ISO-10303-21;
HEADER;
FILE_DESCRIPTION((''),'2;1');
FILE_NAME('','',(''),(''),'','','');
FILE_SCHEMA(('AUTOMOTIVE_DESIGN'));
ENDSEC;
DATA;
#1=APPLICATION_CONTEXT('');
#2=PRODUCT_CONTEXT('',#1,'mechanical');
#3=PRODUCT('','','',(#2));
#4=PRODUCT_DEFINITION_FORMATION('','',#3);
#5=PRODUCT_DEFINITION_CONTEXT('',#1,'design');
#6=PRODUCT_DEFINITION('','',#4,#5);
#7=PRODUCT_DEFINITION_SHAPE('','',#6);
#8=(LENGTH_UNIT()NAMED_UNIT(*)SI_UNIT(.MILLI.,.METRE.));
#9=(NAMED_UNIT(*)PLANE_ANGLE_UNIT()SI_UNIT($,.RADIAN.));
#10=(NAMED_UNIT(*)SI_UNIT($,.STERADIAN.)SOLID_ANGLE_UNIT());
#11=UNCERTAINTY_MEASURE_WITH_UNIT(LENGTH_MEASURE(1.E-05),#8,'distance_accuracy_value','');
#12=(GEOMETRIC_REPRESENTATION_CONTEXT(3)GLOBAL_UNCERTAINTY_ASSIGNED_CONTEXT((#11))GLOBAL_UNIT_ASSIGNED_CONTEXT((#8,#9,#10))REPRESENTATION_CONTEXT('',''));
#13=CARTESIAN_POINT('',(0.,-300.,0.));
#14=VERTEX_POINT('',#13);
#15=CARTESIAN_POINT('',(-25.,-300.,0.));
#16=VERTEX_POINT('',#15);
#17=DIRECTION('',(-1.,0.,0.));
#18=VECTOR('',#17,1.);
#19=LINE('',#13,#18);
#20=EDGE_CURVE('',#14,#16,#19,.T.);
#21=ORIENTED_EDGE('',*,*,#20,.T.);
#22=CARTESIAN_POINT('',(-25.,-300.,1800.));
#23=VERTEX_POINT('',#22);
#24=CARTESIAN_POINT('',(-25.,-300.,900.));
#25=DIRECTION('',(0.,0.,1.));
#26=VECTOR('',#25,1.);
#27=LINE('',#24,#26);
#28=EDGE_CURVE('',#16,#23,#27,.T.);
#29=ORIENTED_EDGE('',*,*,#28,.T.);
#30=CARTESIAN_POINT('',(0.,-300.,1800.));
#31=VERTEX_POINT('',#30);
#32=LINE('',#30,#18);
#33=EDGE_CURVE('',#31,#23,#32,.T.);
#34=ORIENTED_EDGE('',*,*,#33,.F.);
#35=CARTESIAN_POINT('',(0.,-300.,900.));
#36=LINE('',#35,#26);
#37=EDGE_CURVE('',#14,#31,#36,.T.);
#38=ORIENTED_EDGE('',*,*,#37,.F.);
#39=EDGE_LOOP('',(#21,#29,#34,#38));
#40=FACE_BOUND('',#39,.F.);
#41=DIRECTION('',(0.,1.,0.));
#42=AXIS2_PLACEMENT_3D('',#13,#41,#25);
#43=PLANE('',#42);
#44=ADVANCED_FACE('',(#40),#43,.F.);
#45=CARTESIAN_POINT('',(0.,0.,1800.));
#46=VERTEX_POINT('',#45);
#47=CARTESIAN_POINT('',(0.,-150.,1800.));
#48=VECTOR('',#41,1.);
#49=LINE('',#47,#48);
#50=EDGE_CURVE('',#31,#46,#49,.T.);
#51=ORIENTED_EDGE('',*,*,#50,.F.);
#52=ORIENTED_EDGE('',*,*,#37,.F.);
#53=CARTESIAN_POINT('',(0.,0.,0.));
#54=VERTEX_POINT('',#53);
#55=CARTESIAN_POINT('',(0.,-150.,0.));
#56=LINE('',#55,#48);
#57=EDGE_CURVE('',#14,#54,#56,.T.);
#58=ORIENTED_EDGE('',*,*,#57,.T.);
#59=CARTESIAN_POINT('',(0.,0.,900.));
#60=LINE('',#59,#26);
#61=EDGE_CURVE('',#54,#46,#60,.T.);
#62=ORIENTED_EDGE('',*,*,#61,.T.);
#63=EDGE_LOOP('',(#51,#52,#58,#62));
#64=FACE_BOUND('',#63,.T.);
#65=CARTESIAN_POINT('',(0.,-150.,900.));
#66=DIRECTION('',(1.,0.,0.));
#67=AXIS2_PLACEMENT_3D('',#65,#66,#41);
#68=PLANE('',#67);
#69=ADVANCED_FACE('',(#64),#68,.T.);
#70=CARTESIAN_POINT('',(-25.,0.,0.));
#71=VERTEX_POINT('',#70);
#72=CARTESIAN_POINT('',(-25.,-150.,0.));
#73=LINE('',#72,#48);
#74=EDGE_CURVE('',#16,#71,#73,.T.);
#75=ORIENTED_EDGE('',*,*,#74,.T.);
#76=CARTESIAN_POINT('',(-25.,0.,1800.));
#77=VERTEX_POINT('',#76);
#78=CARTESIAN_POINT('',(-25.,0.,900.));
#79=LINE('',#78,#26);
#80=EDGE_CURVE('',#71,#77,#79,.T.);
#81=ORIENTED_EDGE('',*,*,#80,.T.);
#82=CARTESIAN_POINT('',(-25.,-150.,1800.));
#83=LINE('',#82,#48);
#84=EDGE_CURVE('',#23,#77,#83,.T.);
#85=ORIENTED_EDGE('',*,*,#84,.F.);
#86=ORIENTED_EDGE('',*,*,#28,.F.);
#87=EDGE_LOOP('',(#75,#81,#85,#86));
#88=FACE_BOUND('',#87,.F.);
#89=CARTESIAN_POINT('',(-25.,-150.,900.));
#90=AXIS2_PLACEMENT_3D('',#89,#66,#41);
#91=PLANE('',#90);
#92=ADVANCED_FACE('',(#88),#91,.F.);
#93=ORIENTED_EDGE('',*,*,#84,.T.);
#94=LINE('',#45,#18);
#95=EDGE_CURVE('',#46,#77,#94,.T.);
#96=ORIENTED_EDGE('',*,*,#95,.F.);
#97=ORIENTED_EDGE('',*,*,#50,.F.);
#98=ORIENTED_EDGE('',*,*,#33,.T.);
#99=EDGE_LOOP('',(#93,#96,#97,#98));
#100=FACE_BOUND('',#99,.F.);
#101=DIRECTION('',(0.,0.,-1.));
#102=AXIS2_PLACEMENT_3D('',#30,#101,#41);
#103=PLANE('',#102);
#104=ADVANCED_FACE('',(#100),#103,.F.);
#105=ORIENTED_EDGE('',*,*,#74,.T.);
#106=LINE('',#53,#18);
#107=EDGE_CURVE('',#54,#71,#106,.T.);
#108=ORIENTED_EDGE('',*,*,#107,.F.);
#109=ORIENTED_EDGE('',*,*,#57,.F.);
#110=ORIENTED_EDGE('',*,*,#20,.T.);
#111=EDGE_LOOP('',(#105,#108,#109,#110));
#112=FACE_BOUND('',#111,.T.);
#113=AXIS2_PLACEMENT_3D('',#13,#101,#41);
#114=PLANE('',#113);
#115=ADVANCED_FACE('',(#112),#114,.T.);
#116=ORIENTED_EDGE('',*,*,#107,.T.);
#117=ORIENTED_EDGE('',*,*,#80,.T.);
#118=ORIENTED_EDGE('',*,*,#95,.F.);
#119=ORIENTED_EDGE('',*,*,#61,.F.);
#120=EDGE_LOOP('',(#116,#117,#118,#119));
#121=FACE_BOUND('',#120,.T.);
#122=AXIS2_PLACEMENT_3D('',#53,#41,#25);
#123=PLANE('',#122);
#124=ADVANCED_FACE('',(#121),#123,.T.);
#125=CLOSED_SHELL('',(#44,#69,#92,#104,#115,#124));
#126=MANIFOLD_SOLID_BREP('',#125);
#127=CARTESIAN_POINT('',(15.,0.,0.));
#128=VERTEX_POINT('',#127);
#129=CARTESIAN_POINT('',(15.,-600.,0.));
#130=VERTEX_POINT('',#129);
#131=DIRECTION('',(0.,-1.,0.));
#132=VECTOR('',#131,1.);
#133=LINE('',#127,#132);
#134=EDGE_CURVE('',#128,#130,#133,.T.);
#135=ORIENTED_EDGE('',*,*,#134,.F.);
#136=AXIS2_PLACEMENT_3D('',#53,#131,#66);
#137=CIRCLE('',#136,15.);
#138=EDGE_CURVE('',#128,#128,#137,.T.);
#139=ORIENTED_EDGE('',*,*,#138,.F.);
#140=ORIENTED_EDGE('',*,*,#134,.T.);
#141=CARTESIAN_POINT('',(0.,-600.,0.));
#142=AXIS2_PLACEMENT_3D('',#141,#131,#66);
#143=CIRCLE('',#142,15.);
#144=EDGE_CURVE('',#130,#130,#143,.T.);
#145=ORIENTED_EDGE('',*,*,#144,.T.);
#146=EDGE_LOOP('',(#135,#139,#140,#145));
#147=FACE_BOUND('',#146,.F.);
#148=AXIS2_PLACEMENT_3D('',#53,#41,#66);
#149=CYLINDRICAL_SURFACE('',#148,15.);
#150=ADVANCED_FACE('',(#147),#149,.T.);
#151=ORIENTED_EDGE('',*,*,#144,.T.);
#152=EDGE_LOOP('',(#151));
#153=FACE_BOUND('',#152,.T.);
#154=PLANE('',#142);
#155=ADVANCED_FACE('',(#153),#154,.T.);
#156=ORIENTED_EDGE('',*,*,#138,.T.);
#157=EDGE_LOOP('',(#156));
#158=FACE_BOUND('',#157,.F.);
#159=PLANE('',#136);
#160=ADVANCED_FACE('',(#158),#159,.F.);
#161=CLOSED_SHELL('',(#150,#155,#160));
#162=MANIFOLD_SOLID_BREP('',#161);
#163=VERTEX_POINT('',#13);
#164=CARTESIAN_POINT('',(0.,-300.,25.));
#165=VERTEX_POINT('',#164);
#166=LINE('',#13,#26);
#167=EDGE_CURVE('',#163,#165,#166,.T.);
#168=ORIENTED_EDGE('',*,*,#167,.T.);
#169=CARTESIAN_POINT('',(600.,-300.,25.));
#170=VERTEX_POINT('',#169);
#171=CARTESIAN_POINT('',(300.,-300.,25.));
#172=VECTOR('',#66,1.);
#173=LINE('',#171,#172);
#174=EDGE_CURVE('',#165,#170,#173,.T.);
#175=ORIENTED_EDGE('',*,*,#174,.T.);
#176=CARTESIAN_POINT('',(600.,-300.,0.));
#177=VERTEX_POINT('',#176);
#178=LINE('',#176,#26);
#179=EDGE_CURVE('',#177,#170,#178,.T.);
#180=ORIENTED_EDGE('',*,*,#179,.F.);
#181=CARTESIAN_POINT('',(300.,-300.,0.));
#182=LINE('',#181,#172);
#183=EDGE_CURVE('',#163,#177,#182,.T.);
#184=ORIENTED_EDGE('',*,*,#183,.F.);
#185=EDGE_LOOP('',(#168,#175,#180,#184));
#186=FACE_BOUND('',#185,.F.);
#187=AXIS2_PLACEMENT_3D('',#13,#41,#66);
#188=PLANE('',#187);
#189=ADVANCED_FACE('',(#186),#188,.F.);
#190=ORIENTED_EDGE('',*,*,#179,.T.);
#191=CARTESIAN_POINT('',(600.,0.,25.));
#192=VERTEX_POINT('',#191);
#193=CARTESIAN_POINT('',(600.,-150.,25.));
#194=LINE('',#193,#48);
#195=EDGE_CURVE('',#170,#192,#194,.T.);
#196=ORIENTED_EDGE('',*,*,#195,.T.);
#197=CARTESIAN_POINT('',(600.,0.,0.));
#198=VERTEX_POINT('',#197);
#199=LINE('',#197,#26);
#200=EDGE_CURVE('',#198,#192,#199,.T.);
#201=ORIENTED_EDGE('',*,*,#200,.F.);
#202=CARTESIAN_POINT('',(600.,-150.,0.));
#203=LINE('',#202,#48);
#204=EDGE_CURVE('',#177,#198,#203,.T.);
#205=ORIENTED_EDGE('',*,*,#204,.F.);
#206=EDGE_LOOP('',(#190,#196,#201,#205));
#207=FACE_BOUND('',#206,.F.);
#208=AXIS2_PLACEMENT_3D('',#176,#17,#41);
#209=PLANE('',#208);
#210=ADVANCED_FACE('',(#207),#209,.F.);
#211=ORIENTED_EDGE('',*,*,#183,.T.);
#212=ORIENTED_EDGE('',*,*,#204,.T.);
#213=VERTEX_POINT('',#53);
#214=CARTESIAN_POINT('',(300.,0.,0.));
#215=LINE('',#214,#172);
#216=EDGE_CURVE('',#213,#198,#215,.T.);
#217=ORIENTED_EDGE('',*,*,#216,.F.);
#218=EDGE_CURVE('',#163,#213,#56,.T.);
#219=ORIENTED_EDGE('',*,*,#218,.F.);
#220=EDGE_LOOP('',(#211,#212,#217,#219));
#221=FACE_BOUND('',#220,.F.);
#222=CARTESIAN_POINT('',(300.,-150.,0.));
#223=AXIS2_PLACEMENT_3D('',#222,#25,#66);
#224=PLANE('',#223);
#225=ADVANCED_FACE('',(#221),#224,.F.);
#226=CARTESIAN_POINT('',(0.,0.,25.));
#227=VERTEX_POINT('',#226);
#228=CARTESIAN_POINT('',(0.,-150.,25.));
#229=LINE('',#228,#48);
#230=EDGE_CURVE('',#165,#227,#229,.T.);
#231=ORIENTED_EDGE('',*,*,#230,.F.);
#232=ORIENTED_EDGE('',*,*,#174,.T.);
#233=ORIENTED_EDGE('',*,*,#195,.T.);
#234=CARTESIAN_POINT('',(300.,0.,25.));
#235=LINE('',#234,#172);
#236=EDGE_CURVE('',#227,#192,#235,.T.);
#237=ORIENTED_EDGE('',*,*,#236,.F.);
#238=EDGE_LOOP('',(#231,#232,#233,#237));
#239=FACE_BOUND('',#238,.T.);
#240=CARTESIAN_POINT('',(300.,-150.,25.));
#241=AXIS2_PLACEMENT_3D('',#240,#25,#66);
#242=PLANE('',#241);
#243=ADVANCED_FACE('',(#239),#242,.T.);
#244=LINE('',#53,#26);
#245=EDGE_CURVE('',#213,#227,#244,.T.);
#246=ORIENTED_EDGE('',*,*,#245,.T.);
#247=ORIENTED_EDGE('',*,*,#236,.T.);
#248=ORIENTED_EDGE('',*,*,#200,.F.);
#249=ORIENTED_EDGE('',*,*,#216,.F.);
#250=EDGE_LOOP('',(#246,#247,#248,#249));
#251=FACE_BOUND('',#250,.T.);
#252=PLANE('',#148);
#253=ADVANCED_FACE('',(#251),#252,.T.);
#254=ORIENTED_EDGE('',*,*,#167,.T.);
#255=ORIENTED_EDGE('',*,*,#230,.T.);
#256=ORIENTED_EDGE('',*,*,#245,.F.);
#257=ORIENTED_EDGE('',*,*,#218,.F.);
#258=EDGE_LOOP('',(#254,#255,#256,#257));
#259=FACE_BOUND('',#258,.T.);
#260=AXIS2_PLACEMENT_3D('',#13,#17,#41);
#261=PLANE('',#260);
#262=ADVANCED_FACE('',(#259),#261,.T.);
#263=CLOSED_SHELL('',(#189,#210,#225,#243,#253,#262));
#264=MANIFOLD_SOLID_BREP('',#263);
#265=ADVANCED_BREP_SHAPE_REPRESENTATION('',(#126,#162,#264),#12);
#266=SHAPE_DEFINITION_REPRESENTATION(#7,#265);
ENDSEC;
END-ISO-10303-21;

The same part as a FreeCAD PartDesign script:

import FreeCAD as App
import Part
import Sketcher
Q = App.Units.Quantity

doc = App.newDocument("Part")
body = doc.addObject("PartDesign::Body", "Body")

# Sketch on XY plane
sketch1 = doc.addObject("Sketcher::SketchObject", "Sketch")
body.addObject(sketch1)
sketch1.AttachmentSupport = (doc.XY_Plane, [""])
sketch1.MapMode = "FlatFace"
sketch1.addGeometry(Part.LineSegment(App.Vector(0, 0, 0), App.Vector(0, -300, 0)), False)
sketch1.addGeometry(Part.LineSegment(App.Vector(0, -300, 0), App.Vector(600, -300, 0)), False)
sketch1.addGeometry(Part.LineSegment(App.Vector(600, -300, 0), App.Vector(600, 0, 0)), False)
sketch1.addGeometry(Part.LineSegment(App.Vector(600, 0, 0), App.Vector(0, 0, 0)), False)
sketch1.addConstraint(Sketcher.Constraint("Coincident", 0, 2, 1, 1))
sketch1.addConstraint(Sketcher.Constraint("Coincident", 1, 2, 2, 1))
sketch1.addConstraint(Sketcher.Constraint("Coincident", 2, 2, 3, 1))
sketch1.addConstraint(Sketcher.Constraint("Coincident", 3, 2, 0, 1))
sketch1.addConstraint(Sketcher.Constraint("Vertical", 0))
sketch1.addConstraint(Sketcher.Constraint("Horizontal", 1))
sketch1.addConstraint(Sketcher.Constraint("Vertical", 2))
sketch1.addConstraint(Sketcher.Constraint("Horizontal", 3))
sketch1.addConstraint(Sketcher.Constraint("Coincident", 3, 2, -1, 1))
sketch1.addConstraint(Sketcher.Constraint("DistanceX", 1, 1, 1, 2, Q("600 mm")))
sketch1.addConstraint(Sketcher.Constraint("DistanceY", 0, 2, 0, 1, Q("300 mm")))
pad1 = doc.addObject("PartDesign::Pad", "Pad")
body.addObject(pad1)
pad1.Profile = sketch1
pad1.Length = 25
body2 = doc.addObject("PartDesign::Body", "Body001")

# Sketch on YZ plane
sketch2 = doc.addObject("Sketcher::SketchObject", "Sketch001")
body2.addObject(sketch2)
sketch2.AttachmentSupport = (doc.getObject("YZ_Plane001"), [""])
sketch2.MapMode = "FlatFace"
sketch2.addGeometry(Part.LineSegment(App.Vector(-300, 1800, 0), App.Vector(-300, 0, 0)), False)
sketch2.addGeometry(Part.LineSegment(App.Vector(-300, 0, 0), App.Vector(0, 0, 0)), False)
sketch2.addGeometry(Part.LineSegment(App.Vector(0, 0, 0), App.Vector(0, 1800, 0)), False)
sketch2.addGeometry(Part.LineSegment(App.Vector(0, 1800, 0), App.Vector(-300, 1800, 0)), False)
sketch2.addConstraint(Sketcher.Constraint("Coincident", 0, 2, 1, 1))
sketch2.addConstraint(Sketcher.Constraint("Coincident", 1, 2, 2, 1))
sketch2.addConstraint(Sketcher.Constraint("Coincident", 2, 2, 3, 1))
sketch2.addConstraint(Sketcher.Constraint("Coincident", 3, 2, 0, 1))
sketch2.addConstraint(Sketcher.Constraint("Vertical", 0))
sketch2.addConstraint(Sketcher.Constraint("Horizontal", 1))
sketch2.addConstraint(Sketcher.Constraint("Vertical", 2))
sketch2.addConstraint(Sketcher.Constraint("Horizontal", 3))
sketch2.addConstraint(Sketcher.Constraint("Coincident", 1, 2, -1, 1))
sketch2.addConstraint(Sketcher.Constraint("DistanceX", 1, 1, 1, 2, Q("300 mm")))
sketch2.addConstraint(Sketcher.Constraint("DistanceY", 0, 2, 0, 1, Q("1800 mm")))
pad2 = doc.addObject("PartDesign::Pad", "Pad001")
body2.addObject(pad2)
pad2.Profile = sketch2
pad2.Length = 25
pad2.Reversed = True
body3 = doc.addObject("PartDesign::Body", "Body002")

# Sketch on XZ plane
sketch3 = doc.addObject("Sketcher::SketchObject", "Sketch002")
body3.addObject(sketch3)
sketch3.AttachmentSupport = (doc.getObject("XZ_Plane002"), [""])
sketch3.MapMode = "FlatFace"
sketch3.addGeometry(Part.Circle(App.Vector(0, 0, 0), App.Vector(0, 0, 1), 15), False)
sketch3.addConstraint(Sketcher.Constraint("Coincident", 0, 3, -1, 1))
sketch3.addConstraint(Sketcher.Constraint("Diameter", 0, Q("30 mm")))
pad3 = doc.addObject("PartDesign::Pad", "Pad002")
body3.addObject(pad3)
pad3.Profile = sketch3
pad3.Length = 600

doc.recompute()
